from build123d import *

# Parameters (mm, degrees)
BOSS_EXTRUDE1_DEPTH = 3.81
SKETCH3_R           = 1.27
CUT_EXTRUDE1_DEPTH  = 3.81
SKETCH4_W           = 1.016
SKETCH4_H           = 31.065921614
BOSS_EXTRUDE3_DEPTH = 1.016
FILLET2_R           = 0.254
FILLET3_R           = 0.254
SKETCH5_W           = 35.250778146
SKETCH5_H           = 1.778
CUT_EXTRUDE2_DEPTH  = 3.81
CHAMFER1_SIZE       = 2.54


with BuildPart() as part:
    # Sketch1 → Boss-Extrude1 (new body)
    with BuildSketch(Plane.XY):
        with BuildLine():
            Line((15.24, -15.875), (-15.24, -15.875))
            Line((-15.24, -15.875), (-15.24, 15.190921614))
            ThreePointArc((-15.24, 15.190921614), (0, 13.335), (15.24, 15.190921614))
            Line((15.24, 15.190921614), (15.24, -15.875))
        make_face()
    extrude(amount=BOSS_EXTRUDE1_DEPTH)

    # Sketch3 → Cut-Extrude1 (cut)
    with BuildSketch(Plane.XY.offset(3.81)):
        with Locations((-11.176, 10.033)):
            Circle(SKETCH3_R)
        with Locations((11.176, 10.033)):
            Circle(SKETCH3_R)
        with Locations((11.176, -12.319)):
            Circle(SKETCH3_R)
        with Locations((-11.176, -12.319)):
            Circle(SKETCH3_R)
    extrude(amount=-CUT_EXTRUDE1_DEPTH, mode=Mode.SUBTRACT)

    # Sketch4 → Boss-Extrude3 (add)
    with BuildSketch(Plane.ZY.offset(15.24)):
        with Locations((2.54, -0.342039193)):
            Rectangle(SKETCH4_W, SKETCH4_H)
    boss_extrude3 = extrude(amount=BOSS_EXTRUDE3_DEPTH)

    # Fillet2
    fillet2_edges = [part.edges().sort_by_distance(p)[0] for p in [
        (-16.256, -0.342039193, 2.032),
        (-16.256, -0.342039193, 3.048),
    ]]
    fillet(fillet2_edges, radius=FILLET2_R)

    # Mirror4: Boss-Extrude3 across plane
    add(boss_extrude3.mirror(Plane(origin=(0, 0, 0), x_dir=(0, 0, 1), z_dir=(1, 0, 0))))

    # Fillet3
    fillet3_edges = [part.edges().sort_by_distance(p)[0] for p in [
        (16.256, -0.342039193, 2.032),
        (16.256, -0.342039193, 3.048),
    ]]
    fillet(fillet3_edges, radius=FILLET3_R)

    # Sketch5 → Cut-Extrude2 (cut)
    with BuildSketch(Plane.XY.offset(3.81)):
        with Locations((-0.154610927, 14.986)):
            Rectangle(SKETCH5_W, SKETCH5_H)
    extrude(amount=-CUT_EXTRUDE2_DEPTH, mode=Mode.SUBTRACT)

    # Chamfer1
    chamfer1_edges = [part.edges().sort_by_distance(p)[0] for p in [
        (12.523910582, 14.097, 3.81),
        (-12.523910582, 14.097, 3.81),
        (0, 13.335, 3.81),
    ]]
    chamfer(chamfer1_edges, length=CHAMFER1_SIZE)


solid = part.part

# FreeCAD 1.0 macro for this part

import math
import FreeCAD as App
import Part
import Sketcher
from FreeCAD import Vector
Q = App.Units.Quantity


def edges_at(feature, points):
    """Names of the edges that pass closest to the given points."""
    edges = feature.Shape.Edges
    near = lambda p: min(range(len(edges)), key=lambda i: edges[i].distToShape(Part.Vertex(*p))[0])
    return sorted({f"Edge{near(p) + 1}" for p in points})


def add_polygon(sketch, points):
    """Adds a closed chain of lines whose ends are joined by coincident constraints."""
    first, n = sketch.GeometryCount, len(points)
    for a, b in zip(points, points[1:] + points[:1]):
        sketch.addGeometry(Part.LineSegment(App.Vector(*a, 0), App.Vector(*b, 0)), False)
    for i in range(n):
        sketch.addConstraint(Sketcher.Constraint("Coincident", first + i, 2, first + (i + 1) % n, 1))

doc = App.newDocument("Part")
body = doc.addObject("PartDesign::Body", "Body")

# Sketch on XY plane
sketch1 = doc.addObject("Sketcher::SketchObject", "Sketch")
body.addObject(sketch1)
sketch1.AttachmentSupport = (doc.XY_Plane, [""])
sketch1.MapMode = "FlatFace"
sketch1.addGeometry(Part.LineSegment(Vector(-15, -16, 0), Vector(15, -16, 0)), False)
sketch1.addGeometry(Part.LineSegment(Vector(15, -16, 0), Vector(15, 15, 0)), False)
sketch1.addGeometry(Part.ArcOfCircle(Part.Circle(Vector(0, 77, 0), Vector(0, 0, 1), 64), math.radians(-104), math.radians(-76)), False)
sketch1.addGeometry(Part.LineSegment(Vector(-15, 15, 0), Vector(-15, -16, 0)), False)
sketch1.addConstraint(Sketcher.Constraint("Coincident", 0, 2, 1, 1))
sketch1.addConstraint(Sketcher.Constraint("Coincident", 1, 2, 2, 2))
sketch1.addConstraint(Sketcher.Constraint("Coincident", 2, 1, 3, 1))
sketch1.addConstraint(Sketcher.Constraint("Coincident", 3, 2, 0, 1))
sketch1.addConstraint(Sketcher.Constraint("Horizontal", 0))
sketch1.addConstraint(Sketcher.Constraint("Vertical", 1))
sketch1.addConstraint(Sketcher.Constraint("Vertical", 3))
sketch1.addConstraint(Sketcher.Constraint("Symmetric", 1, 2, 2, 1, -2))
sketch1.addConstraint(Sketcher.Constraint("Radius", 2, Q("2.5 in")))
sketch1.addConstraint(Sketcher.Constraint("DistanceX", 0, 1, 0, 2, Q("1.2 in")))
sketch1.addConstraint(Sketcher.Constraint("DistanceY", 0, 2, 2, 3, Q("3.65 in")))
sketch1.addConstraint(Sketcher.Constraint("DistanceY", -1, 1, 2, 3, Q("3.025 in")))
pad1 = doc.addObject("PartDesign::Pad", "Pad")
body.addObject(pad1)
pad1.Profile = sketch1
pad1.Length = Q("0.15 in")

# Sketch on XY plane
sketch2 = doc.addObject("Sketcher::SketchObject", "Sketch001")
body.addObject(sketch2)
sketch2.AttachmentSupport = (doc.XY_Plane, [""])
sketch2.MapMode = "FlatFace"
sketch2.AttachmentOffset = App.Placement(Vector(0, 0, 0.15 * 25.4), App.Rotation())
sketch2.addGeometry(Part.Circle(Vector(-11.2, 10, 0), Vector(0, 0, 1), 1.3), False)
sketch2.addGeometry(Part.Circle(Vector(11.2, 10, 0), Vector(0, 0, 1), 1.3), False)
sketch2.addGeometry(Part.Circle(Vector(11.2, -12.3, 0), Vector(0, 0, 1), 1.3), False)
sketch2.addGeometry(Part.Circle(Vector(-11.2, -12.3, 0), Vector(0, 0, 1), 1.3), False)
sketch2.addConstraint(Sketcher.Constraint("Equal", 0, 1))
sketch2.addConstraint(Sketcher.Constraint("Equal", 1, 2))
sketch2.addConstraint(Sketcher.Constraint("Equal", 2, 3))
sketch2.addConstraint(Sketcher.Constraint("Symmetric", 0, 3, 1, 3, -2))
sketch2.addConstraint(Sketcher.Constraint("Symmetric", 2, 3, 3, 3, -2))
sketch2.addConstraint(Sketcher.Constraint("Vertical", 1, 3, 2, 3))
sketch2.addConstraint(Sketcher.Constraint("Diameter", 0, Q("0.1 in")))
sketch2.addConstraint(Sketcher.Constraint("DistanceX", 0, 3, -1, 1, Q("0.44 in")))
sketch2.addConstraint(Sketcher.Constraint("DistanceY", 2, 3, 1, 3, Q("0.88 in")))
sketch2.addConstraint(Sketcher.Constraint("DistanceY", -1, 1, 0, 3, Q("0.395 in")))
pocket1 = doc.addObject("PartDesign::Pocket", "Pocket")
body.addObject(pocket1)
pocket1.Profile = sketch2
pocket1.Length = Q("0.15 in")

# Sketch on YZ plane
sketch3 = doc.addObject("Sketcher::SketchObject", "Sketch002")
body.addObject(sketch3)
sketch3.AttachmentSupport = (doc.YZ_Plane, [""])
sketch3.MapMode = "FlatFace"
sketch3.AttachmentOffset = App.Placement(Vector(0, 0, -0.6 * 25.4), App.Rotation())
add_polygon(sketch3, [(15.2, 2), (-15.9, 2), (-15.9, 3), (15.2, 3)])  # lines 0-3
sketch3.addConstraint(Sketcher.Constraint("Horizontal", 0))
sketch3.addConstraint(Sketcher.Constraint("Vertical", 1))
sketch3.addConstraint(Sketcher.Constraint("Horizontal", 2))
sketch3.addConstraint(Sketcher.Constraint("Vertical", 3))
sketch3.addConstraint(Sketcher.Constraint("DistanceY", 1, 1, 1, 2, Q("0.04 in")))
sketch3.addConstraint(Sketcher.Constraint("DistanceY", -1, 1, 0, 2, Q("0.08 in")))
sketch3.addConstraint(Sketcher.Constraint("DistanceX", 0, 2, -1, 1, Q("0.625 in")))
sketch3.addConstraint(Sketcher.Constraint("DistanceX", 0, 2, 0, 1, 31.065922))
pad2 = doc.addObject("PartDesign::Pad", "Pad001")
body.addObject(pad2)
pad2.Profile = sketch3
pad2.Length = Q("0.04 in")
pad2.Reversed = True
doc.recompute()

fillet = doc.addObject("PartDesign::Fillet", "Fillet")
body.addObject(fillet)
fillet.Base = (pad2, edges_at(pad2, [(-16.256, -0.342, 2.032), (-16.256, -0.342, 3.048)]))
fillet.Radius = Q("0.01 in")
doc.recompute()

mirrored = doc.addObject("PartDesign::Mirrored", "Mirrored")
body.addObject(mirrored)
mirrored.Originals = [pad2]
mirrored.MirrorPlane = (doc.YZ_Plane, [""])
body.Tip = mirrored
doc.recompute()

fillet2 = doc.addObject("PartDesign::Fillet", "Fillet001")
body.addObject(fillet2)
fillet2.Base = (mirrored, edges_at(mirrored, [(16.256, -0.342, 2.032), (16.256, -0.342, 3.048)]))
fillet2.Radius = Q("0.01 in")

# Sketch on XY plane
sketch4 = doc.addObject("Sketcher::SketchObject", "Sketch003")
body.addObject(sketch4)
sketch4.AttachmentSupport = (doc.XY_Plane, [""])
sketch4.MapMode = "FlatFace"
sketch4.AttachmentOffset = App.Placement(Vector(0, 0, 0.15 * 25.4), App.Rotation())
add_polygon(sketch4, [(-17.8, 15.9), (-17.8, 14.1), (17.5, 14.1), (17.5, 15.9)])  # lines 0-3
sketch4.addConstraint(Sketcher.Constraint("Vertical", 0))
sketch4.addConstraint(Sketcher.Constraint("Horizontal", 1))
sketch4.addConstraint(Sketcher.Constraint("Vertical", 2))
sketch4.addConstraint(Sketcher.Constraint("Horizontal", 3))
sketch4.addConstraint(Sketcher.Constraint("DistanceY", 0, 2, 0, 1, Q("0.07 in")))
sketch4.addConstraint(Sketcher.Constraint("DistanceX", 0, 2, -1, 1, Q("0.7 in")))
sketch4.addConstraint(Sketcher.Constraint("DistanceY", -1, 1, 0, 2, Q("0.555 in")))
sketch4.addConstraint(Sketcher.Constraint("DistanceX", 1, 1, 1, 2, 35.250778))
pocket2 = doc.addObject("PartDesign::Pocket", "Pocket001")
body.addObject(pocket2)
pocket2.Profile = sketch4
pocket2.Length = Q("0.15 in")
doc.recompute()

chamfer = doc.addObject("PartDesign::Chamfer", "Chamfer")
body.addObject(chamfer)
chamfer.Base = (pocket2, edges_at(pocket2, [(12.524, 14.097, 3.81), (-12.524, 14.097, 3.81), (0, 13.335, 3.81)]))
chamfer.Size = Q("0.1 in")

doc.recompute()
